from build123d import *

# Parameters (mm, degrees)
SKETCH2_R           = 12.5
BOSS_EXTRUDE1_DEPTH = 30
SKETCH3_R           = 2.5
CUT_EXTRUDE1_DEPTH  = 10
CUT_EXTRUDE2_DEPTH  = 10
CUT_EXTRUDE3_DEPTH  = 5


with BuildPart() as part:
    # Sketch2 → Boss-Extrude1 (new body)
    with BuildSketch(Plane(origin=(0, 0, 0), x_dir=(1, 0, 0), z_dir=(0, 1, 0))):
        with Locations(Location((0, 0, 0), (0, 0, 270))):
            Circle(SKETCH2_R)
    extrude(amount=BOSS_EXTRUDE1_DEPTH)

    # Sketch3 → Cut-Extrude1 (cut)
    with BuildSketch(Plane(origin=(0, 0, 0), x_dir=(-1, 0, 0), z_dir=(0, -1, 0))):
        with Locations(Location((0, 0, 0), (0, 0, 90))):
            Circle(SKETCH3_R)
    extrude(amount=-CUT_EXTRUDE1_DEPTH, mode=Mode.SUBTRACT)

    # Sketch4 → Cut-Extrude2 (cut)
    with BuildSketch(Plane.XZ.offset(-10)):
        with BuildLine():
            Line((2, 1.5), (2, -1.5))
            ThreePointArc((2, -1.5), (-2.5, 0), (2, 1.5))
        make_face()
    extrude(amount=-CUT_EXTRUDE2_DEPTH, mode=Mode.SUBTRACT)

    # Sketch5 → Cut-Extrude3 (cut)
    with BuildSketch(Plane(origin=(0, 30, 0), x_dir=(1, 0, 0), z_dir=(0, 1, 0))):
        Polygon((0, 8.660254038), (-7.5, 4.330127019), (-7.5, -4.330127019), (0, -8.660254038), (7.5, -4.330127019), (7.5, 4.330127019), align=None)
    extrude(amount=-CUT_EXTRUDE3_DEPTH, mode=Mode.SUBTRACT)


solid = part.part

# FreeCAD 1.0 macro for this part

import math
import FreeCAD as App
import Part
import Sketcher
from FreeCAD import Vector
Q = App.Units.Quantity

doc = App.newDocument("Part")
body = doc.addObject("PartDesign::Body", "Body")

# Sketch on XZ plane
sketch1 = body.newObject("Sketcher::SketchObject", "Sketch")
sketch1.AttachmentSupport = (doc.getObject("XZ_Plane"), [""])
sketch1.MapMode = "FlatFace"
sketch1.addGeometry(Part.Circle(Vector(0, 0, 0), Vector(0, 0, 1), 12), False)
sketch1.addConstraint(Sketcher.Constraint("Coincident", 0, 3, -1, 1))
sketch1.addConstraint(Sketcher.Constraint("Diameter", 0, 25.0))
pad1 = body.newObject("PartDesign::Pad", "Pad")
pad1.Profile = sketch1
pad1.Length = 30
pad1.Reversed = True

# Sketch on XZ plane
sketch2 = body.newObject("Sketcher::SketchObject", "Sketch001")
sketch2.AttachmentSupport = (doc.getObject("XZ_Plane"), [""])
sketch2.MapMode = "FlatFace"
sketch2.addGeometry(Part.Circle(Vector(0, 0, 0), Vector(0, 0, 1), 2.5), False)
sketch2.addConstraint(Sketcher.Constraint("Coincident", 0, 3, -1, 1))
sketch2.addConstraint(Sketcher.Constraint("Diameter", 0, 5.0))
pocket1 = body.newObject("PartDesign::Pocket", "Pocket")
pocket1.Profile = sketch2
pocket1.Length = 10

# Sketch on XZ plane
sketch3 = body.newObject("Sketcher::SketchObject", "Sketch002")
sketch3.AttachmentSupport = (doc.getObject("XZ_Plane"), [""])
sketch3.MapMode = "FlatFace"
sketch3.AttachmentOffset = App.Placement(Vector(0, 0, -10), App.Rotation())
sketch3.addGeometry(Part.LineSegment(Vector(2, -1.5, 0), Vector(2, 1.5, 0)), False)
sketch3.addGeometry(Part.ArcOfCircle(Part.Circle(Vector(0, 0, 0), Vector(0, 0, 1), 2.5), math.radians(37), math.radians(323)), False)
sketch3.addConstraint(Sketcher.Constraint("Coincident", 0, 1, 1, 2))
sketch3.addConstraint(Sketcher.Constraint("Coincident", 1, 1, 0, 2))
sketch3.addConstraint(Sketcher.Constraint("Vertical", 0))
sketch3.addConstraint(Sketcher.Constraint("Coincident", 1, 3, -1, 1))
sketch3.addConstraint(Sketcher.Constraint("Radius", 1, 2.5))
sketch3.addConstraint(Sketcher.Constraint("DistanceY", 0, 1, 0, 2, 3.0))
pocket2 = body.newObject("PartDesign::Pocket", "Pocket001")
pocket2.Profile = sketch3
pocket2.Length = 10

# Sketch on XZ plane
sketch4 = body.newObject("Sketcher::SketchObject", "Sketch003")
sketch4.AttachmentSupport = (doc.getObject("XZ_Plane"), [""])
sketch4.MapMode = "FlatFace"
sketch4.AttachmentOffset = App.Placement(Vector(0, 0, -30), App.Rotation())
sketch4.addGeometry(Part.LineSegment(Vector(0, -9, 0), Vector(-8, -4, 0)), False)
sketch4.addGeometry(Part.LineSegment(Vector(-8, -4, 0), Vector(-8, 4, 0)), False)
sketch4.addGeometry(Part.LineSegment(Vector(-8, 4, 0), Vector(0, 9, 0)), False)
sketch4.addGeometry(Part.LineSegment(Vector(0, 9, 0), Vector(8, 4, 0)), False)
sketch4.addGeometry(Part.LineSegment(Vector(8, 4, 0), Vector(8, -4, 0)), False)
sketch4.addGeometry(Part.LineSegment(Vector(8, -4, 0), Vector(0, -9, 0)), False)
sketch4.addConstraint(Sketcher.Constraint("Coincident", 0, 2, 1, 1))
sketch4.addConstraint(Sketcher.Constraint("Coincident", 1, 2, 2, 1))
sketch4.addConstraint(Sketcher.Constraint("Coincident", 2, 2, 3, 1))
sketch4.addConstraint(Sketcher.Constraint("Coincident", 3, 2, 4, 1))
sketch4.addConstraint(Sketcher.Constraint("Coincident", 4, 2, 5, 1))
sketch4.addConstraint(Sketcher.Constraint("Coincident", 5, 2, 0, 1))
sketch4.addConstraint(Sketcher.Constraint("Vertical", 1))
sketch4.addConstraint(Sketcher.Constraint("Vertical", 4))
sketch4.addConstraint(Sketcher.Constraint("Symmetric", 0, 2, 3, 2, -1, 1))
sketch4.addConstraint(Sketcher.Constraint("Symmetric", 2, 2, 5, 2, -1, 1))
sketch4.addConstraint(Sketcher.Constraint("PointOnObject", 2, 2, -2))
sketch4.addConstraint(Sketcher.Constraint("Parallel", 2, 5))
sketch4.addConstraint(Sketcher.Constraint("Horizontal", 1, 2, 3, 2))
sketch4.addConstraint(Sketcher.Constraint("Angle", 0, Q("150 deg")))
sketch4.addConstraint(Sketcher.Constraint("DistanceX", 1, 2, 3, 2, 15.0))
sketch4.addConstraint(Sketcher.Constraint("DistanceY", 1, 1, 1, 2, 8.660254))
pocket3 = body.newObject("PartDesign::Pocket", "Pocket002")
pocket3.Profile = sketch4
pocket3.Length = 5
pocket3.Reversed = True

doc.recompute()
